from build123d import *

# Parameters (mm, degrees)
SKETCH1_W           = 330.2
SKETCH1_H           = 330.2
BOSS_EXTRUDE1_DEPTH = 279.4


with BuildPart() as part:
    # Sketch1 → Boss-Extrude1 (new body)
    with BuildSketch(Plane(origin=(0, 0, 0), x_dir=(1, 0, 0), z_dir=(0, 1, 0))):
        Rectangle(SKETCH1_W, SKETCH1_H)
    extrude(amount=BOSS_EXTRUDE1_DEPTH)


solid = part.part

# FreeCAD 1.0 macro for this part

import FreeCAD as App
import Part
import Sketcher
Q = App.Units.Quantity


def add_polygon(sketch, points):
    """Adds a closed chain of lines whose ends are joined by coincident constraints."""
    first, n = sketch.GeometryCount, len(points)
    for a, b in zip(points, points[1:] + points[:1]):
        sketch.addGeometry(Part.LineSegment(App.Vector(*a, 0), App.Vector(*b, 0)), False)
    for i in range(n):
        sketch.addConstraint(Sketcher.Constraint("Coincident", first + i, 2, first + (i + 1) % n, 1))

doc = App.newDocument("Part")
body = doc.addObject("PartDesign::Body", "Body")

# Sketch on XZ plane
sketch1 = body.newObject("Sketcher::SketchObject", "Sketch")
sketch1.AttachmentSupport = (doc.getObject("XZ_Plane"), [""])
sketch1.MapMode = "FlatFace"
add_polygon(sketch1, [(-165, -165), (-165, 165), (165, 165), (165, -165)])  # lines 0-3
sketch1.addConstraint([
    Sketcher.Constraint("Vertical", 0),
    Sketcher.Constraint("Horizontal", 1),
    Sketcher.Constraint("Vertical", 2),
    Sketcher.Constraint("Horizontal", 3),
    Sketcher.Constraint("Symmetric", 0, 2, 2, 2, -1, 1),
    Sketcher.Constraint("Equal", 3, 0),
    Sketcher.Constraint("DistanceX", 1, 1, 1, 2, Q("13 in")),
])
pad1 = body.newObject("PartDesign::Pad", "Pad")
pad1.Profile = sketch1
pad1.Length = Q("11 in")
pad1.Reversed = True

doc.recompute()
